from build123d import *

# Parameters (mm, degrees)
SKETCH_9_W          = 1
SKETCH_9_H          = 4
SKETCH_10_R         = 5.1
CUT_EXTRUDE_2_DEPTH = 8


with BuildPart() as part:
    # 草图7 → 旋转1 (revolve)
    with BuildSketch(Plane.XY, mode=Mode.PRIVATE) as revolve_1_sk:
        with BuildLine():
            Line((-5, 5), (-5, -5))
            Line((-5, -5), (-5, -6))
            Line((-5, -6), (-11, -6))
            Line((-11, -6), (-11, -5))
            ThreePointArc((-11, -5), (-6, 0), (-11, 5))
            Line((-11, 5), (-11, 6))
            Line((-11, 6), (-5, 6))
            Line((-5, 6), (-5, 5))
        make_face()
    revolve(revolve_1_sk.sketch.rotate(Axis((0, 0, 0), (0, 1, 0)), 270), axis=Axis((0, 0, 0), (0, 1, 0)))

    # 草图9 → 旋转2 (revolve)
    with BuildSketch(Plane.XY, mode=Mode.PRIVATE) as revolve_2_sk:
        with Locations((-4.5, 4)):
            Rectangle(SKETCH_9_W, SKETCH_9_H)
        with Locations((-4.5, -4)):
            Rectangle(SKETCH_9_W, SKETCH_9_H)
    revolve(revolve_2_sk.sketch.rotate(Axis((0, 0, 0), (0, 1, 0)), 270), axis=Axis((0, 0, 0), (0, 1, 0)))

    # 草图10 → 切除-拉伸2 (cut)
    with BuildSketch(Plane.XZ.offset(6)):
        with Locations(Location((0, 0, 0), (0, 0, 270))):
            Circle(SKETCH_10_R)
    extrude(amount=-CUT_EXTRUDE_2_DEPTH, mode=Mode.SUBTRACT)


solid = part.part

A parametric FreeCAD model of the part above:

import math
import FreeCAD as App
import Part
import Sketcher
from FreeCAD import Vector
Q = App.Units.Quantity


def add_polygon(sketch, points):
    """Adds a closed chain of lines whose ends are joined by coincident constraints."""
    first, n = sketch.GeometryCount, len(points)
    for a, b in zip(points, points[1:] + points[:1]):
        sketch.addGeometry(Part.LineSegment(App.Vector(*a, 0), App.Vector(*b, 0)), False)
    for i in range(n):
        sketch.addConstraint(Sketcher.Constraint("Coincident", first + i, 2, first + (i + 1) % n, 1))

doc = App.newDocument("Part")
body = doc.addObject("PartDesign::Body", "Body")

sketch1 = body.newObject("Sketcher::SketchObject", "Sketch")
sketch1.AttachmentSupport = (doc.getObject("XY_Plane"), [""])
sketch1.MapMode = "FlatFace"
sketch1.addGeometry([
    Part.LineSegment(Vector(-11, -6, 0), Vector(-5, -6, 0)),
    Part.LineSegment(Vector(-5, -6, 0), Vector(-5, 6, 0)),
    Part.LineSegment(Vector(-5, 6, 0), Vector(-11, 6, 0)),
    Part.LineSegment(Vector(-11, 6, 0), Vector(-11, 5, 0)),
    Part.ArcOfCircle(Part.Circle(Vector(-11, 0, 0), Vector(0, 0, 1), 5), math.radians(-90), math.radians(90)),
    Part.LineSegment(Vector(-11, -5, 0), Vector(-11, -6, 0)),
], False)
sketch1.addConstraint([
    Sketcher.Constraint("Coincident", 0, 2, 1, 1),
    Sketcher.Constraint("Coincident", 1, 2, 2, 1),
    Sketcher.Constraint("Coincident", 2, 2, 3, 1),
    Sketcher.Constraint("Coincident", 3, 2, 4, 2),
    Sketcher.Constraint("Coincident", 4, 1, 5, 1),
    Sketcher.Constraint("Coincident", 5, 2, 0, 1),
    Sketcher.Constraint("Horizontal", 0),
    Sketcher.Constraint("Vertical", 1),
    Sketcher.Constraint("Horizontal", 2),
    Sketcher.Constraint("Vertical", 3),
    Sketcher.Constraint("Vertical", 5),
    Sketcher.Constraint("Symmetric", 3, 2, 4, 1, -1),
    Sketcher.Constraint("Vertical", 4, 3, 2, 2),
    Sketcher.Constraint("Equal", 3, 5),
    Sketcher.Constraint("Radius", 4, Q("5 mm")),
    Sketcher.Constraint("DistanceX", 0, 1, 0, 2, Q("6 mm")),
    Sketcher.Constraint("DistanceY", 1, 1, 1, 2, Q("12 mm")),
    Sketcher.Constraint("DistanceX", 4, 3, -1, 1, Q("11 mm")),
])
revolution = body.newObject("PartDesign::Revolution", "Revolution")
revolution.Profile = sketch1
revolution.ReferenceAxis = (sketch1, ["V_Axis"])
revolution.Angle = 360

sketch2 = body.newObject("Sketcher::SketchObject", "Sketch001")
sketch2.AttachmentSupport = (doc.getObject("XY_Plane"), [""])
sketch2.MapMode = "FlatFace"
add_polygon(sketch2, [(-5, 6), (-5, 2), (-4, 2), (-4, 6)])
add_polygon(sketch2, [(-5, -2), (-5, -6), (-4, -6), (-4, -2)])
sketch2.addConstraint([
    Sketcher.Constraint("Vertical", 0),
    Sketcher.Constraint("Horizontal", 1),
    Sketcher.Constraint("Vertical", 2),
    Sketcher.Constraint("Horizontal", 3),
    Sketcher.Constraint("Vertical", 4),
    Sketcher.Constraint("Horizontal", 5),
    Sketcher.Constraint("Vertical", 6),
    Sketcher.Constraint("Horizontal", 7),
    Sketcher.Constraint("Symmetric", 3, 2, 4, 2, -1),
    Sketcher.Constraint("Symmetric", 1, 2, 6, 2, -1),
    Sketcher.Constraint("DistanceX", 1, 1, 1, 2, Q("1 mm")),
    Sketcher.Constraint("DistanceY", 0, 2, 0, 1, Q("4 mm")),
    Sketcher.Constraint("DistanceX", 0, 2, -1, 1, Q("5 mm")),
    Sketcher.Constraint("DistanceY", -1, 1, 0, 2, Q("2 mm")),
])
revolution2 = body.newObject("PartDesign::Revolution", "Revolution001")
revolution2.Profile = sketch2
revolution2.ReferenceAxis = (sketch2, ["V_Axis"])
revolution2.Angle = 360

sketch3 = body.newObject("Sketcher::SketchObject", "Sketch002")
sketch3.AttachmentSupport = (doc.getObject("XZ_Plane"), [""])
sketch3.MapMode = "FlatFace"
sketch3.AttachmentOffset = App.Placement(Vector(0, 0, 6), App.Rotation())
sketch3.addGeometry(Part.Circle(Vector(0, 0, 0), Vector(0, 0, 1), 5), False)
sketch3.addConstraint([
    Sketcher.Constraint("Coincident", 0, 3, -1, 1),
    Sketcher.Constraint("Diameter", 0, Q("10.2 mm")),
])
pocket1 = body.newObject("PartDesign::Pocket", "Pocket")
pocket1.Profile = sketch3
pocket1.Length = 8

doc.recompute()
